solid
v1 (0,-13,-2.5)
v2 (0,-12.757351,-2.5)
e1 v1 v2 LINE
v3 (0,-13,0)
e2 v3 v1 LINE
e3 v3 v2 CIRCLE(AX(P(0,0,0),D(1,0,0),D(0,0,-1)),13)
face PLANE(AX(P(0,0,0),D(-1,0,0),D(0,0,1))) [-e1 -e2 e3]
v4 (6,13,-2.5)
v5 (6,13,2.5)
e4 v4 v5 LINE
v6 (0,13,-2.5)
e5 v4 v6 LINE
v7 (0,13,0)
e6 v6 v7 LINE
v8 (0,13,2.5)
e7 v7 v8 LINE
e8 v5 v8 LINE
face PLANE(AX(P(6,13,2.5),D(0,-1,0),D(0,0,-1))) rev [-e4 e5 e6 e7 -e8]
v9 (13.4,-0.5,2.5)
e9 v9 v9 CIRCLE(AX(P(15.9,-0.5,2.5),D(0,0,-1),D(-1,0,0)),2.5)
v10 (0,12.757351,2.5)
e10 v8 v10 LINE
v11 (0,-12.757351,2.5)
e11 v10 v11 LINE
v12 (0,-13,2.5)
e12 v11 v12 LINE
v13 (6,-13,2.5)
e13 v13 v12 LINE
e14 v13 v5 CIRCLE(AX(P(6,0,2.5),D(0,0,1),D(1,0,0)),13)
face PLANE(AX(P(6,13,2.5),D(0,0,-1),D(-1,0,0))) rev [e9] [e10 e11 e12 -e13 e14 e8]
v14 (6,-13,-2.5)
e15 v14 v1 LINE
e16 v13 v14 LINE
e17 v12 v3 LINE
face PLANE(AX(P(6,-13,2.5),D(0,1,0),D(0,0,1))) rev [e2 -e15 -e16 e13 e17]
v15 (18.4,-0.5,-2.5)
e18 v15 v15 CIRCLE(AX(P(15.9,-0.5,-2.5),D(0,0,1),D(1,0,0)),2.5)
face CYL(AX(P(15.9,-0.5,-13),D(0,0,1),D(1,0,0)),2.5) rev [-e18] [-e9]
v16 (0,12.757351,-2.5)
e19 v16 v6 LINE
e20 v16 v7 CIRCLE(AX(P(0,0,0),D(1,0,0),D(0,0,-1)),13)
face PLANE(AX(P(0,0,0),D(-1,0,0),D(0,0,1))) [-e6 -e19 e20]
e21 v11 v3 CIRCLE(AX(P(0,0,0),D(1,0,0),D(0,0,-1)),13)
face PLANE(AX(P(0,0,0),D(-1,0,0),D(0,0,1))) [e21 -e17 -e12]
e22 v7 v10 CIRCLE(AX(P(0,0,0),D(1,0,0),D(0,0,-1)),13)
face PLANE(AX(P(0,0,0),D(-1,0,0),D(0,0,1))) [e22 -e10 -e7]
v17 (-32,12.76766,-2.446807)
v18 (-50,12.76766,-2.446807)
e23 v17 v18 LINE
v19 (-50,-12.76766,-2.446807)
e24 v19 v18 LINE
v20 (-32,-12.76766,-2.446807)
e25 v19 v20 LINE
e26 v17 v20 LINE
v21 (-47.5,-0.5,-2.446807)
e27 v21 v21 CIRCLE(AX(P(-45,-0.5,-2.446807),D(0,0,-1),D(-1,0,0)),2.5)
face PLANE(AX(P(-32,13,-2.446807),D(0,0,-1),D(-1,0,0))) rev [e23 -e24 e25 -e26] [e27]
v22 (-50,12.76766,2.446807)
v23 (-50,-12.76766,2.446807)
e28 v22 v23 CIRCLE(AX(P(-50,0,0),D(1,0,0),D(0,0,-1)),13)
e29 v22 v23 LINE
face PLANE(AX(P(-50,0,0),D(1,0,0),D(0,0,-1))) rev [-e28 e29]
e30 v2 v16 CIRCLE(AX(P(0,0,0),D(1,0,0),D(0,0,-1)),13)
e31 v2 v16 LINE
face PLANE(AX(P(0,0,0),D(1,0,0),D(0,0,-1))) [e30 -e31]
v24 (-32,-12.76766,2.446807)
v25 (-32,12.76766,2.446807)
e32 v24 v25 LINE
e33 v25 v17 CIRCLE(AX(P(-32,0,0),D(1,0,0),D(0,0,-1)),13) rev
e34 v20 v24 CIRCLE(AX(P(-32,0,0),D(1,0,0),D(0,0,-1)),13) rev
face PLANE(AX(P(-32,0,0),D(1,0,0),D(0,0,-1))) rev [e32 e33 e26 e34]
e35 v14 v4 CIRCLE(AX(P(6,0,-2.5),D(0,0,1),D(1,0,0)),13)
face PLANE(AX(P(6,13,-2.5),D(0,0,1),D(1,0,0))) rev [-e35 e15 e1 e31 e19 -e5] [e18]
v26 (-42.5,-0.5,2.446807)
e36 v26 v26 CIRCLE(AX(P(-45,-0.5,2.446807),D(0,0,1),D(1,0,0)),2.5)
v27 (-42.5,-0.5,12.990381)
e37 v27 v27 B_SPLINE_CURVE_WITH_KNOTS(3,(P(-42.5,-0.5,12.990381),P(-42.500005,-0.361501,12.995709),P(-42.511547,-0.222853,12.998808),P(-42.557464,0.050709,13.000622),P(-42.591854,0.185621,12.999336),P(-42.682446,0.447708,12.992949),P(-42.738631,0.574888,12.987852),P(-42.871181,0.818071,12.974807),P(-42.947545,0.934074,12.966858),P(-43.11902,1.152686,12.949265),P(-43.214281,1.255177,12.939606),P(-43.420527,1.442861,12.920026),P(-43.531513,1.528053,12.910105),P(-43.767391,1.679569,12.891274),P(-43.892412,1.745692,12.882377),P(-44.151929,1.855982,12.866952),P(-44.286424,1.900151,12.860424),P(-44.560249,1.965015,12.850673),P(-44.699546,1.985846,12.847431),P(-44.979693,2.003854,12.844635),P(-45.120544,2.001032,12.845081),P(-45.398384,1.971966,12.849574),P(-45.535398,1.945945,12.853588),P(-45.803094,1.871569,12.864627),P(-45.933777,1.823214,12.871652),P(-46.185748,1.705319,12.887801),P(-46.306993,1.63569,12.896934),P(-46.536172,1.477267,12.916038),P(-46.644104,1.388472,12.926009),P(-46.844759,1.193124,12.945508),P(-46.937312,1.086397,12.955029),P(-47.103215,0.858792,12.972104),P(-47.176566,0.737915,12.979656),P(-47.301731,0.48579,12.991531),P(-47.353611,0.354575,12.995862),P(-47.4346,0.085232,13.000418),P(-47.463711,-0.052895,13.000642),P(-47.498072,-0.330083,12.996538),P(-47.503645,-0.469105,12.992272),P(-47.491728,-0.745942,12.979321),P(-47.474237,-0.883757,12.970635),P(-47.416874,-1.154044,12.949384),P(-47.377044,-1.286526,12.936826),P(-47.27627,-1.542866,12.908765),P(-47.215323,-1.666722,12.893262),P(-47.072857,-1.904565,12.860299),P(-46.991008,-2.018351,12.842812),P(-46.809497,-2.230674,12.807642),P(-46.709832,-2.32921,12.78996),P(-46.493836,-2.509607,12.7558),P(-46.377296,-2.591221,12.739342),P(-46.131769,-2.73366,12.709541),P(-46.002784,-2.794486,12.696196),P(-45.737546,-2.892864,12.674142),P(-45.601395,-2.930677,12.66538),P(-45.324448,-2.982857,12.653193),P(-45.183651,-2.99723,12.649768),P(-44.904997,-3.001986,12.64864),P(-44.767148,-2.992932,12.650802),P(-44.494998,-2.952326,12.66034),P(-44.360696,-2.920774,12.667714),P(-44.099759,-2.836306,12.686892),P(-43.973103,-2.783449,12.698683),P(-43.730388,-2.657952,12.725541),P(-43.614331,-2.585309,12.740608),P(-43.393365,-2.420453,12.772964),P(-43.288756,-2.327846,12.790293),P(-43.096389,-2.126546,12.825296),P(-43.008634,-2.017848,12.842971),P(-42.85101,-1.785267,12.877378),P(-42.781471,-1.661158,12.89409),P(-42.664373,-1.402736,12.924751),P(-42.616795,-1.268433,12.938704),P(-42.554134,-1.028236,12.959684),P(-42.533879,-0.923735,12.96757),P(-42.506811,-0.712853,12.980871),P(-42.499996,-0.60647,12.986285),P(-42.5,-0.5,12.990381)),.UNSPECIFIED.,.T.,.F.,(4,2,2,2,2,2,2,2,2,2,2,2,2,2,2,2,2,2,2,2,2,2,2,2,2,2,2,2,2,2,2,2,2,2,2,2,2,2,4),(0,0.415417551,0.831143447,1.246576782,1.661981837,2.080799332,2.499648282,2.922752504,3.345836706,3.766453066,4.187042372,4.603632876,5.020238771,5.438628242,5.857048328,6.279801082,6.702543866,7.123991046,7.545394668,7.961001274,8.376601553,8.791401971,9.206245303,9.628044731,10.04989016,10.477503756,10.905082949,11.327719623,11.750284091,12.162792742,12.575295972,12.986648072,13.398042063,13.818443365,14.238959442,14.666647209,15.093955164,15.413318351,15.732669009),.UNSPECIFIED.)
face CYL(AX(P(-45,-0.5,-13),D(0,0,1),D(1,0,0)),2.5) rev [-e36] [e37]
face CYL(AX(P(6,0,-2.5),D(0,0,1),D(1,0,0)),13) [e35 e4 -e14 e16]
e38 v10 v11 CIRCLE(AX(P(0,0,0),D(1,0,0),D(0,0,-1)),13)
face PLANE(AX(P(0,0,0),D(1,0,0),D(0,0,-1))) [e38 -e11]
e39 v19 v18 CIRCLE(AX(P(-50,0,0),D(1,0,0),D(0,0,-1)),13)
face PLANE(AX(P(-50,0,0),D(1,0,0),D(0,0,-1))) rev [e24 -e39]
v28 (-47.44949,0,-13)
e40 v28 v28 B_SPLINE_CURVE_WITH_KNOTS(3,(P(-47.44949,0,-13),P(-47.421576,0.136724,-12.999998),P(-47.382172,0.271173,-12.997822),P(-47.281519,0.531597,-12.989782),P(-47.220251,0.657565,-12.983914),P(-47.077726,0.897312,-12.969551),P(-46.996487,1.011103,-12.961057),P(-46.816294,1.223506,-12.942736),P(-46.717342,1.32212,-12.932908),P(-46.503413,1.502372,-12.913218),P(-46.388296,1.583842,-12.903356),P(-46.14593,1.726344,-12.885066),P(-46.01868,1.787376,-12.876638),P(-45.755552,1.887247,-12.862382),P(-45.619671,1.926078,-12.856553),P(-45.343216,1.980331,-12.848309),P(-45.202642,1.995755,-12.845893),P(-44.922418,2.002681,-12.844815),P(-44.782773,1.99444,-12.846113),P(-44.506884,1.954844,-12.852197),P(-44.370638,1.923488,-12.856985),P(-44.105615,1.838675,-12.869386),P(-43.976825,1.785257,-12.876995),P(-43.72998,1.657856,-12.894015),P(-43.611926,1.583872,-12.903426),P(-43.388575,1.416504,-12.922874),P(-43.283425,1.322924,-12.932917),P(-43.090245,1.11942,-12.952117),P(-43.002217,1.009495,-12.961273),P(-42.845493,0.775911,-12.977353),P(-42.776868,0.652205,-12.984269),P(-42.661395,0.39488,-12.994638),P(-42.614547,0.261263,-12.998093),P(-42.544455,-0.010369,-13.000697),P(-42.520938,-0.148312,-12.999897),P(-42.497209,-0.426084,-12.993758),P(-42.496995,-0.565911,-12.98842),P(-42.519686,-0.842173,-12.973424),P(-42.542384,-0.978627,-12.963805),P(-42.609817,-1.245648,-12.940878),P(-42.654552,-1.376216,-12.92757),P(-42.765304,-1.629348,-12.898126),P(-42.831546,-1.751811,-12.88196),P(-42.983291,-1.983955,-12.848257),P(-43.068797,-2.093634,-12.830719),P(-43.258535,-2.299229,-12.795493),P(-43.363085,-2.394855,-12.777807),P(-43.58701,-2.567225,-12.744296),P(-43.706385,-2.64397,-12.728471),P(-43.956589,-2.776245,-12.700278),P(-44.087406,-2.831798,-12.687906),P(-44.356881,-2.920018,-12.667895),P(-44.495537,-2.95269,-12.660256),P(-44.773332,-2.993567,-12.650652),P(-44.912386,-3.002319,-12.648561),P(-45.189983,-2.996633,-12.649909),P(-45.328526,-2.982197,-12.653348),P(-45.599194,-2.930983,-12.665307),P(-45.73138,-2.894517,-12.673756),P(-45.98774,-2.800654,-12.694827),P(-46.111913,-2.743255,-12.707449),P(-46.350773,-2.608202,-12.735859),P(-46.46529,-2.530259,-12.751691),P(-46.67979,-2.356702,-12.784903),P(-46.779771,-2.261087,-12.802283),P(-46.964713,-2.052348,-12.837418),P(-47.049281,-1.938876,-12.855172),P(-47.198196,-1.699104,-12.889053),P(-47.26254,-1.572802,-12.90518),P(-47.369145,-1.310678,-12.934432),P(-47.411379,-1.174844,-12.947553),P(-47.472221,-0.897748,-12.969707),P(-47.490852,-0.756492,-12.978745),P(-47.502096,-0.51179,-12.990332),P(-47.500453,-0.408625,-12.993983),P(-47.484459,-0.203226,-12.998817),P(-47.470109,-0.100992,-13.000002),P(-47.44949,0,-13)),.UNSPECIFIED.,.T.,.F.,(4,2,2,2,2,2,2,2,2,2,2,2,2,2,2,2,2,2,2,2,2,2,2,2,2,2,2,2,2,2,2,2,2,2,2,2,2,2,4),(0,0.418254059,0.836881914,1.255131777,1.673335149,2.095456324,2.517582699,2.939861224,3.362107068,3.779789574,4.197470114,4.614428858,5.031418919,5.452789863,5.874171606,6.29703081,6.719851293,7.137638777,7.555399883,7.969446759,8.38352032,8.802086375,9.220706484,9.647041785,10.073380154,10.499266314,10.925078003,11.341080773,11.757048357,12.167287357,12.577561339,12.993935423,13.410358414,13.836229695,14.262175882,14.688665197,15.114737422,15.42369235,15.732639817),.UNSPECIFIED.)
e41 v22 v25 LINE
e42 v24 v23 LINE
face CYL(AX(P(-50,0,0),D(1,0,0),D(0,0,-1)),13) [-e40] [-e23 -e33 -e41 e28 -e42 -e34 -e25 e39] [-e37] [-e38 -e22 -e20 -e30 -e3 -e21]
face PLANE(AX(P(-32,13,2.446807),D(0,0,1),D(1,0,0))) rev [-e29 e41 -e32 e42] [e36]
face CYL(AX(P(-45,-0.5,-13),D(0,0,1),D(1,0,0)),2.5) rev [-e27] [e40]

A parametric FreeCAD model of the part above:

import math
import FreeCAD as App
import Part
import Sketcher

V = App.Vector


def add_polygon(sketch, points):
    """Adds a closed chain of lines whose ends are joined by coincident constraints."""
    first, n = sketch.GeometryCount, len(points)
    for a, b in zip(points, points[1:] + points[:1]):
        sketch.addGeometry(Part.LineSegment(App.Vector(*a, 0), App.Vector(*b, 0)), False)
    for i in range(n):
        sketch.addConstraint(Sketcher.Constraint("Coincident", first + i, 2, first + (i + 1) % n, 1))

doc = App.newDocument("Part")
body = doc.addObject("PartDesign::Body", "Body")

sketch1 = body.newObject("Sketcher::SketchObject", "Sketch")
sketch1.AttachmentSupport = (doc.getObject("YZ_Plane"), [""])
sketch1.MapMode = "FlatFace"
sketch1.addGeometry(Part.Circle(V(0, 0, 0), V(0, 0, 1), 13), False)
sketch1.addConstraint([
    Sketcher.Constraint("Coincident", 0, 3, -1, 1),
    Sketcher.Constraint("Diameter", 0, 26.0),
])
pad1 = body.newObject("PartDesign::Pad", "Pad")
pad1.Profile = sketch1
pad1.Length = 50
pad1.Reversed = True

sketch2 = body.newObject("Sketcher::SketchObject", "Sketch001")
sketch2.AttachmentSupport = (doc.getObject("YZ_Plane"), [""])
sketch2.MapMode = "FlatFace"
add_polygon(sketch2, [(13, 2.5), (-13, 2.5), (-13, -2.5), (13, -2.5)])
sketch2.addConstraint([
    Sketcher.Constraint("Horizontal", 0),
    Sketcher.Constraint("Vertical", 1),
    Sketcher.Constraint("Horizontal", 2),
    Sketcher.Constraint("Vertical", 3),
    Sketcher.Constraint("Symmetric", 0, 2, 2, 2, -1, 1),
    Sketcher.Constraint("DistanceX", 0, 2, 0, 1, 26.0),
    Sketcher.Constraint("DistanceY", 1, 2, 1, 1, 5.0),
])
pad2 = body.newObject("PartDesign::Pad", "Pad001")
pad2.Profile = sketch2
pad2.Length = 6

sketch3 = body.newObject("Sketcher::SketchObject", "Sketch002")
sketch3.AttachmentSupport = (doc.getObject("XY_Plane"), [""])
sketch3.MapMode = "FlatFace"
sketch3.AttachmentOffset = App.Placement(V(0, 0, 2.5), App.Rotation())
sketch3.addGeometry([
    Part.LineSegment(V(6, 13, 0), V(6, -13, 0)),
    Part.ArcOfCircle(Part.Circle(V(6, 0, 0), V(0, 0, 1), 13), math.radians(-90), math.radians(90)),
], False)
sketch3.addConstraint([
    Sketcher.Constraint("Coincident", 0, 1, 1, 2),
    Sketcher.Constraint("Coincident", 1, 1, 0, 2),
    Sketcher.Constraint("Vertical", 0),
    Sketcher.Constraint("PointOnObject", 1, 3, -1),
    Sketcher.Constraint("Vertical", 1, 3, 0, 1),
    Sketcher.Constraint("Radius", 1, 13.0),
    Sketcher.Constraint("DistanceX", -1, 1, 1, 3, 6.0),
])
pad3 = body.newObject("PartDesign::Pad", "Pad002")
pad3.Profile = sketch3
pad3.Length = 5
pad3.Reversed = True

sketch4 = body.newObject("Sketcher::SketchObject", "Sketch003")
sketch4.AttachmentSupport = (doc.getObject("XY_Plane"), [""])
sketch4.MapMode = "FlatFace"
sketch4.AttachmentOffset = App.Placement(V(0, 0, 2.5), App.Rotation())
sketch4.addGeometry(Part.Circle(V(15.9, -0.5, 0), V(0, 0, 1), 2.5), False)
sketch4.addConstraint([
    Sketcher.Constraint("Diameter", 0, 5.0),
    Sketcher.Constraint("DistanceX", -1, 1, 0, 3, 15.9),
    Sketcher.Constraint("DistanceY", 0, 3, -1, 1, 0.5),
])
pocket1 = body.newObject("PartDesign::Pocket", "Pocket")
pocket1.Profile = sketch4
pocket1.Type = "ThroughAll"
pocket1.Midplane = True

sketch5 = body.newObject("Sketcher::SketchObject", "Sketch004")
sketch5.AttachmentSupport = (doc.getObject("YZ_Plane"), [""])
sketch5.MapMode = "FlatFace"
sketch5.AttachmentOffset = App.Placement(V(0, 0, -50), App.Rotation())
add_polygon(sketch5, [(13, -2.446807), (-13, -2.446807), (-13, 2.446807), (13, 2.446807)])
sketch5.addConstraint([
    Sketcher.Constraint("Horizontal", 0),
    Sketcher.Constraint("Vertical", 1),
    Sketcher.Constraint("Horizontal", 2),
    Sketcher.Constraint("Vertical", 3),
    Sketcher.Constraint("Symmetric", 0, 2, 2, 2, -1, 1),
    Sketcher.Constraint("DistanceX", 0, 2, 0, 1, 26.0),
    Sketcher.Constraint("DistanceY", 1, 1, 1, 2, 4.893614),
])
pocket2 = body.newObject("PartDesign::Pocket", "Pocket001")
pocket2.Profile = sketch5
pocket2.Length = 18
pocket2.Reversed = True

sketch6 = body.newObject("Sketcher::SketchObject", "Sketch005")
sketch6.AttachmentSupport = (doc.getObject("XY_Plane"), [""])
sketch6.MapMode = "FlatFace"
sketch6.addGeometry(Part.Circle(V(-45, -0.5, 0), V(0, 0, 1), 2.5), False)
sketch6.addConstraint([
    Sketcher.Constraint("Diameter", 0, 5.0),
    Sketcher.Constraint("DistanceX", 0, 3, -1, 1, 45.0),
    Sketcher.Constraint("DistanceY", 0, 3, -1, 1, 0.5),
])
pocket3 = body.newObject("PartDesign::Pocket", "Pocket002")
pocket3.Profile = sketch6
pocket3.Type = "ThroughAll"
pocket3.Midplane = True

doc.recompute()
